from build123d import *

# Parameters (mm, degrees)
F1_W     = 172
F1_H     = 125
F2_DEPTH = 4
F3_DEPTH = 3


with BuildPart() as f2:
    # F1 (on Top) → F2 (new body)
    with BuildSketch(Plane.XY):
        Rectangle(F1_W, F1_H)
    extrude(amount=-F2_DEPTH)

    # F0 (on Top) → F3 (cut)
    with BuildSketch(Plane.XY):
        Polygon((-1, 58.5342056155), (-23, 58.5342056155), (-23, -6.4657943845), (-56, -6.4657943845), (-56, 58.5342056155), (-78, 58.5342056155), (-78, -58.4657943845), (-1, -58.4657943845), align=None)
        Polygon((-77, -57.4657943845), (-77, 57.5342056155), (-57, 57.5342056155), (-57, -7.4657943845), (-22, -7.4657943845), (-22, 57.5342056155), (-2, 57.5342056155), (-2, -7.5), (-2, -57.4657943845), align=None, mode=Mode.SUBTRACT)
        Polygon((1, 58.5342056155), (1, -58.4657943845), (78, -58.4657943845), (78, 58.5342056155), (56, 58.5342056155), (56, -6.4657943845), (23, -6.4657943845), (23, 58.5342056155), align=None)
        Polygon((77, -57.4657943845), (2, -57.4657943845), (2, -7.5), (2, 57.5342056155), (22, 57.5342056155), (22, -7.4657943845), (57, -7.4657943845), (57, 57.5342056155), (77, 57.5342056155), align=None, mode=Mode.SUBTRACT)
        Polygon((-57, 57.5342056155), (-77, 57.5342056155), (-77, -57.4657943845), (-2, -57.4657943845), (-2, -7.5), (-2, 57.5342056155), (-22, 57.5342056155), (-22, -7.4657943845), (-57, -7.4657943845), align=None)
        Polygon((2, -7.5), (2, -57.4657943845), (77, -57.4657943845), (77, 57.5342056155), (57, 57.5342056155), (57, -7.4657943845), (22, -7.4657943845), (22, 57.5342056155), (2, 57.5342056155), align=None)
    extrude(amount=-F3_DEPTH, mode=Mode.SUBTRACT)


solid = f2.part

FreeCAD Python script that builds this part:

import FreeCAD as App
import Part
import Sketcher

V = App.Vector
Q = App.Units.Quantity

doc = App.newDocument("Part")
body = doc.addObject("PartDesign::Body", "Body")

# Sketch on XY plane
sketch1 = body.newObject("Sketcher::SketchObject", "Sketch")
sketch1.AttachmentSupport = (doc.getObject("XY_Plane"), [""])
sketch1.MapMode = "FlatFace"
sketch1.addGeometry([
    Part.LineSegment(V(-86, 62, 0), V(-86, -62, 0)),
    Part.LineSegment(V(-86, -62, 0), V(86, -62, 0)),
    Part.LineSegment(V(86, -62, 0), V(86, 62, 0)),
    Part.LineSegment(V(86, 62, 0), V(-86, 62, 0)),
], False)
sketch1.addConstraint([
    Sketcher.Constraint("Coincident", 0, 2, 1, 1),
    Sketcher.Constraint("Coincident", 1, 2, 2, 1),
    Sketcher.Constraint("Coincident", 2, 2, 3, 1),
    Sketcher.Constraint("Coincident", 3, 2, 0, 1),
    Sketcher.Constraint("Vertical", 0),
    Sketcher.Constraint("Horizontal", 1),
    Sketcher.Constraint("Vertical", 2),
    Sketcher.Constraint("Horizontal", 3),
    Sketcher.Constraint("Symmetric", 0, 2, 2, 2, -1, 1),
    Sketcher.Constraint("DistanceX", 1, 1, 1, 2, Q("172 mm")),
    Sketcher.Constraint("DistanceY", 0, 2, 0, 1, Q("125 mm")),
])
pad1 = body.newObject("PartDesign::Pad", "Pad")
pad1.Profile = sketch1
pad1.Length = 4
pad1.Reversed = True

# Sketch on XY plane
sketch2 = body.newObject("Sketcher::SketchObject", "Sketch001")
sketch2.AttachmentSupport = (doc.getObject("XY_Plane"), [""])
sketch2.MapMode = "FlatFace"
sketch2.addGeometry([
    Part.LineSegment(V(-1, 59, 0), V(-23, 59, 0)),  # 0
    Part.LineSegment(V(-23, 59, 0), V(-23, -6, 0)),  # 1
    Part.LineSegment(V(-23, -6, 0), V(-56, -6, 0)),  # 2
    Part.LineSegment(V(-56, -6, 0), V(-56, 59, 0)),  # 3
    Part.LineSegment(V(-56, 59, 0), V(-78, 59, 0)),  # 4
    Part.LineSegment(V(-78, 59, 0), V(-78, -58, 0)),  # 5
    Part.LineSegment(V(-78, -58, 0), V(-1, -58, 0)),  # 6
    Part.LineSegment(V(-1, -58, 0), V(-1, 59, 0)),  # 7
    Part.LineSegment(V(1, 59, 0), V(1, -58, 0)),  # 8
    Part.LineSegment(V(1, -58, 0), V(78, -58, 0)),  # 9
    Part.LineSegment(V(78, -58, 0), V(78, 59, 0)),  # 10
    Part.LineSegment(V(78, 59, 0), V(56, 59, 0)),  # 11
    Part.LineSegment(V(56, 59, 0), V(56, -6, 0)),  # 12
    Part.LineSegment(V(56, -6, 0), V(23, -6, 0)),  # 13
    Part.LineSegment(V(23, -6, 0), V(23, 59, 0)),  # 14
    Part.LineSegment(V(23, 59, 0), V(1, 59, 0)),  # 15
], False)
sketch2.addConstraint([
    Sketcher.Constraint("Coincident", 0, 2, 1, 1),
    Sketcher.Constraint("Coincident", 1, 2, 2, 1),
    Sketcher.Constraint("Coincident", 2, 2, 3, 1),
    Sketcher.Constraint("Coincident", 3, 2, 4, 1),
    Sketcher.Constraint("Coincident", 4, 2, 5, 1),
    Sketcher.Constraint("Coincident", 5, 2, 6, 1),
    Sketcher.Constraint("Coincident", 6, 2, 7, 1),
    Sketcher.Constraint("Coincident", 7, 2, 0, 1),
    Sketcher.Constraint("Coincident", 8, 2, 9, 1),
    Sketcher.Constraint("Coincident", 9, 2, 10, 1),
    Sketcher.Constraint("Coincident", 10, 2, 11, 1),
    Sketcher.Constraint("Coincident", 11, 2, 12, 1),
    Sketcher.Constraint("Coincident", 12, 2, 13, 1),
    Sketcher.Constraint("Coincident", 13, 2, 14, 1),
    Sketcher.Constraint("Coincident", 14, 2, 15, 1),
    Sketcher.Constraint("Coincident", 15, 2, 8, 1),
    Sketcher.Constraint("Horizontal", 0),
    Sketcher.Constraint("Vertical", 1),
    Sketcher.Constraint("Horizontal", 2),
    Sketcher.Constraint("Vertical", 3),
    Sketcher.Constraint("Horizontal", 4),
    Sketcher.Constraint("Vertical", 5),
    Sketcher.Constraint("Horizontal", 6),
    Sketcher.Constraint("Vertical", 7),
    Sketcher.Constraint("Vertical", 8),
    Sketcher.Constraint("Horizontal", 9),
    Sketcher.Constraint("Vertical", 10),
    Sketcher.Constraint("Horizontal", 11),
    Sketcher.Constraint("Vertical", 12),
    Sketcher.Constraint("Horizontal", 13),
    Sketcher.Constraint("Vertical", 14),
    Sketcher.Constraint("Horizontal", 15),
    Sketcher.Constraint("Symmetric", 6, 2, 8, 2, -2),
    Sketcher.Constraint("Symmetric", 4, 2, 10, 2, -2),
    Sketcher.Constraint("Symmetric", 2, 2, 12, 2, -2),
    Sketcher.Constraint("Symmetric", 0, 2, 14, 2, -2),
    Sketcher.Constraint("Horizontal", 0, 2, 3, 2),
    Sketcher.Constraint("Equal", 0, 4),
    Sketcher.Constraint("DistanceX", 0, 2, 0, 1, Q("22 mm")),
    Sketcher.Constraint("DistanceX", 2, 2, 2, 1, Q("33 mm")),
    Sketcher.Constraint("DistanceY", 1, 2, 1, 1, Q("65 mm")),
    Sketcher.Constraint("DistanceY", 5, 2, 5, 1, Q("117 mm")),
    Sketcher.Constraint("DistanceX", 0, 2, -1, 1, Q("23 mm")),
    Sketcher.Constraint("DistanceY", -1, 1, 0, 2, Q("58.534206 mm")),
])
pocket1 = body.newObject("PartDesign::Pocket", "Pocket")
pocket1.Profile = sketch2
pocket1.Length = 3

doc.recompute()
